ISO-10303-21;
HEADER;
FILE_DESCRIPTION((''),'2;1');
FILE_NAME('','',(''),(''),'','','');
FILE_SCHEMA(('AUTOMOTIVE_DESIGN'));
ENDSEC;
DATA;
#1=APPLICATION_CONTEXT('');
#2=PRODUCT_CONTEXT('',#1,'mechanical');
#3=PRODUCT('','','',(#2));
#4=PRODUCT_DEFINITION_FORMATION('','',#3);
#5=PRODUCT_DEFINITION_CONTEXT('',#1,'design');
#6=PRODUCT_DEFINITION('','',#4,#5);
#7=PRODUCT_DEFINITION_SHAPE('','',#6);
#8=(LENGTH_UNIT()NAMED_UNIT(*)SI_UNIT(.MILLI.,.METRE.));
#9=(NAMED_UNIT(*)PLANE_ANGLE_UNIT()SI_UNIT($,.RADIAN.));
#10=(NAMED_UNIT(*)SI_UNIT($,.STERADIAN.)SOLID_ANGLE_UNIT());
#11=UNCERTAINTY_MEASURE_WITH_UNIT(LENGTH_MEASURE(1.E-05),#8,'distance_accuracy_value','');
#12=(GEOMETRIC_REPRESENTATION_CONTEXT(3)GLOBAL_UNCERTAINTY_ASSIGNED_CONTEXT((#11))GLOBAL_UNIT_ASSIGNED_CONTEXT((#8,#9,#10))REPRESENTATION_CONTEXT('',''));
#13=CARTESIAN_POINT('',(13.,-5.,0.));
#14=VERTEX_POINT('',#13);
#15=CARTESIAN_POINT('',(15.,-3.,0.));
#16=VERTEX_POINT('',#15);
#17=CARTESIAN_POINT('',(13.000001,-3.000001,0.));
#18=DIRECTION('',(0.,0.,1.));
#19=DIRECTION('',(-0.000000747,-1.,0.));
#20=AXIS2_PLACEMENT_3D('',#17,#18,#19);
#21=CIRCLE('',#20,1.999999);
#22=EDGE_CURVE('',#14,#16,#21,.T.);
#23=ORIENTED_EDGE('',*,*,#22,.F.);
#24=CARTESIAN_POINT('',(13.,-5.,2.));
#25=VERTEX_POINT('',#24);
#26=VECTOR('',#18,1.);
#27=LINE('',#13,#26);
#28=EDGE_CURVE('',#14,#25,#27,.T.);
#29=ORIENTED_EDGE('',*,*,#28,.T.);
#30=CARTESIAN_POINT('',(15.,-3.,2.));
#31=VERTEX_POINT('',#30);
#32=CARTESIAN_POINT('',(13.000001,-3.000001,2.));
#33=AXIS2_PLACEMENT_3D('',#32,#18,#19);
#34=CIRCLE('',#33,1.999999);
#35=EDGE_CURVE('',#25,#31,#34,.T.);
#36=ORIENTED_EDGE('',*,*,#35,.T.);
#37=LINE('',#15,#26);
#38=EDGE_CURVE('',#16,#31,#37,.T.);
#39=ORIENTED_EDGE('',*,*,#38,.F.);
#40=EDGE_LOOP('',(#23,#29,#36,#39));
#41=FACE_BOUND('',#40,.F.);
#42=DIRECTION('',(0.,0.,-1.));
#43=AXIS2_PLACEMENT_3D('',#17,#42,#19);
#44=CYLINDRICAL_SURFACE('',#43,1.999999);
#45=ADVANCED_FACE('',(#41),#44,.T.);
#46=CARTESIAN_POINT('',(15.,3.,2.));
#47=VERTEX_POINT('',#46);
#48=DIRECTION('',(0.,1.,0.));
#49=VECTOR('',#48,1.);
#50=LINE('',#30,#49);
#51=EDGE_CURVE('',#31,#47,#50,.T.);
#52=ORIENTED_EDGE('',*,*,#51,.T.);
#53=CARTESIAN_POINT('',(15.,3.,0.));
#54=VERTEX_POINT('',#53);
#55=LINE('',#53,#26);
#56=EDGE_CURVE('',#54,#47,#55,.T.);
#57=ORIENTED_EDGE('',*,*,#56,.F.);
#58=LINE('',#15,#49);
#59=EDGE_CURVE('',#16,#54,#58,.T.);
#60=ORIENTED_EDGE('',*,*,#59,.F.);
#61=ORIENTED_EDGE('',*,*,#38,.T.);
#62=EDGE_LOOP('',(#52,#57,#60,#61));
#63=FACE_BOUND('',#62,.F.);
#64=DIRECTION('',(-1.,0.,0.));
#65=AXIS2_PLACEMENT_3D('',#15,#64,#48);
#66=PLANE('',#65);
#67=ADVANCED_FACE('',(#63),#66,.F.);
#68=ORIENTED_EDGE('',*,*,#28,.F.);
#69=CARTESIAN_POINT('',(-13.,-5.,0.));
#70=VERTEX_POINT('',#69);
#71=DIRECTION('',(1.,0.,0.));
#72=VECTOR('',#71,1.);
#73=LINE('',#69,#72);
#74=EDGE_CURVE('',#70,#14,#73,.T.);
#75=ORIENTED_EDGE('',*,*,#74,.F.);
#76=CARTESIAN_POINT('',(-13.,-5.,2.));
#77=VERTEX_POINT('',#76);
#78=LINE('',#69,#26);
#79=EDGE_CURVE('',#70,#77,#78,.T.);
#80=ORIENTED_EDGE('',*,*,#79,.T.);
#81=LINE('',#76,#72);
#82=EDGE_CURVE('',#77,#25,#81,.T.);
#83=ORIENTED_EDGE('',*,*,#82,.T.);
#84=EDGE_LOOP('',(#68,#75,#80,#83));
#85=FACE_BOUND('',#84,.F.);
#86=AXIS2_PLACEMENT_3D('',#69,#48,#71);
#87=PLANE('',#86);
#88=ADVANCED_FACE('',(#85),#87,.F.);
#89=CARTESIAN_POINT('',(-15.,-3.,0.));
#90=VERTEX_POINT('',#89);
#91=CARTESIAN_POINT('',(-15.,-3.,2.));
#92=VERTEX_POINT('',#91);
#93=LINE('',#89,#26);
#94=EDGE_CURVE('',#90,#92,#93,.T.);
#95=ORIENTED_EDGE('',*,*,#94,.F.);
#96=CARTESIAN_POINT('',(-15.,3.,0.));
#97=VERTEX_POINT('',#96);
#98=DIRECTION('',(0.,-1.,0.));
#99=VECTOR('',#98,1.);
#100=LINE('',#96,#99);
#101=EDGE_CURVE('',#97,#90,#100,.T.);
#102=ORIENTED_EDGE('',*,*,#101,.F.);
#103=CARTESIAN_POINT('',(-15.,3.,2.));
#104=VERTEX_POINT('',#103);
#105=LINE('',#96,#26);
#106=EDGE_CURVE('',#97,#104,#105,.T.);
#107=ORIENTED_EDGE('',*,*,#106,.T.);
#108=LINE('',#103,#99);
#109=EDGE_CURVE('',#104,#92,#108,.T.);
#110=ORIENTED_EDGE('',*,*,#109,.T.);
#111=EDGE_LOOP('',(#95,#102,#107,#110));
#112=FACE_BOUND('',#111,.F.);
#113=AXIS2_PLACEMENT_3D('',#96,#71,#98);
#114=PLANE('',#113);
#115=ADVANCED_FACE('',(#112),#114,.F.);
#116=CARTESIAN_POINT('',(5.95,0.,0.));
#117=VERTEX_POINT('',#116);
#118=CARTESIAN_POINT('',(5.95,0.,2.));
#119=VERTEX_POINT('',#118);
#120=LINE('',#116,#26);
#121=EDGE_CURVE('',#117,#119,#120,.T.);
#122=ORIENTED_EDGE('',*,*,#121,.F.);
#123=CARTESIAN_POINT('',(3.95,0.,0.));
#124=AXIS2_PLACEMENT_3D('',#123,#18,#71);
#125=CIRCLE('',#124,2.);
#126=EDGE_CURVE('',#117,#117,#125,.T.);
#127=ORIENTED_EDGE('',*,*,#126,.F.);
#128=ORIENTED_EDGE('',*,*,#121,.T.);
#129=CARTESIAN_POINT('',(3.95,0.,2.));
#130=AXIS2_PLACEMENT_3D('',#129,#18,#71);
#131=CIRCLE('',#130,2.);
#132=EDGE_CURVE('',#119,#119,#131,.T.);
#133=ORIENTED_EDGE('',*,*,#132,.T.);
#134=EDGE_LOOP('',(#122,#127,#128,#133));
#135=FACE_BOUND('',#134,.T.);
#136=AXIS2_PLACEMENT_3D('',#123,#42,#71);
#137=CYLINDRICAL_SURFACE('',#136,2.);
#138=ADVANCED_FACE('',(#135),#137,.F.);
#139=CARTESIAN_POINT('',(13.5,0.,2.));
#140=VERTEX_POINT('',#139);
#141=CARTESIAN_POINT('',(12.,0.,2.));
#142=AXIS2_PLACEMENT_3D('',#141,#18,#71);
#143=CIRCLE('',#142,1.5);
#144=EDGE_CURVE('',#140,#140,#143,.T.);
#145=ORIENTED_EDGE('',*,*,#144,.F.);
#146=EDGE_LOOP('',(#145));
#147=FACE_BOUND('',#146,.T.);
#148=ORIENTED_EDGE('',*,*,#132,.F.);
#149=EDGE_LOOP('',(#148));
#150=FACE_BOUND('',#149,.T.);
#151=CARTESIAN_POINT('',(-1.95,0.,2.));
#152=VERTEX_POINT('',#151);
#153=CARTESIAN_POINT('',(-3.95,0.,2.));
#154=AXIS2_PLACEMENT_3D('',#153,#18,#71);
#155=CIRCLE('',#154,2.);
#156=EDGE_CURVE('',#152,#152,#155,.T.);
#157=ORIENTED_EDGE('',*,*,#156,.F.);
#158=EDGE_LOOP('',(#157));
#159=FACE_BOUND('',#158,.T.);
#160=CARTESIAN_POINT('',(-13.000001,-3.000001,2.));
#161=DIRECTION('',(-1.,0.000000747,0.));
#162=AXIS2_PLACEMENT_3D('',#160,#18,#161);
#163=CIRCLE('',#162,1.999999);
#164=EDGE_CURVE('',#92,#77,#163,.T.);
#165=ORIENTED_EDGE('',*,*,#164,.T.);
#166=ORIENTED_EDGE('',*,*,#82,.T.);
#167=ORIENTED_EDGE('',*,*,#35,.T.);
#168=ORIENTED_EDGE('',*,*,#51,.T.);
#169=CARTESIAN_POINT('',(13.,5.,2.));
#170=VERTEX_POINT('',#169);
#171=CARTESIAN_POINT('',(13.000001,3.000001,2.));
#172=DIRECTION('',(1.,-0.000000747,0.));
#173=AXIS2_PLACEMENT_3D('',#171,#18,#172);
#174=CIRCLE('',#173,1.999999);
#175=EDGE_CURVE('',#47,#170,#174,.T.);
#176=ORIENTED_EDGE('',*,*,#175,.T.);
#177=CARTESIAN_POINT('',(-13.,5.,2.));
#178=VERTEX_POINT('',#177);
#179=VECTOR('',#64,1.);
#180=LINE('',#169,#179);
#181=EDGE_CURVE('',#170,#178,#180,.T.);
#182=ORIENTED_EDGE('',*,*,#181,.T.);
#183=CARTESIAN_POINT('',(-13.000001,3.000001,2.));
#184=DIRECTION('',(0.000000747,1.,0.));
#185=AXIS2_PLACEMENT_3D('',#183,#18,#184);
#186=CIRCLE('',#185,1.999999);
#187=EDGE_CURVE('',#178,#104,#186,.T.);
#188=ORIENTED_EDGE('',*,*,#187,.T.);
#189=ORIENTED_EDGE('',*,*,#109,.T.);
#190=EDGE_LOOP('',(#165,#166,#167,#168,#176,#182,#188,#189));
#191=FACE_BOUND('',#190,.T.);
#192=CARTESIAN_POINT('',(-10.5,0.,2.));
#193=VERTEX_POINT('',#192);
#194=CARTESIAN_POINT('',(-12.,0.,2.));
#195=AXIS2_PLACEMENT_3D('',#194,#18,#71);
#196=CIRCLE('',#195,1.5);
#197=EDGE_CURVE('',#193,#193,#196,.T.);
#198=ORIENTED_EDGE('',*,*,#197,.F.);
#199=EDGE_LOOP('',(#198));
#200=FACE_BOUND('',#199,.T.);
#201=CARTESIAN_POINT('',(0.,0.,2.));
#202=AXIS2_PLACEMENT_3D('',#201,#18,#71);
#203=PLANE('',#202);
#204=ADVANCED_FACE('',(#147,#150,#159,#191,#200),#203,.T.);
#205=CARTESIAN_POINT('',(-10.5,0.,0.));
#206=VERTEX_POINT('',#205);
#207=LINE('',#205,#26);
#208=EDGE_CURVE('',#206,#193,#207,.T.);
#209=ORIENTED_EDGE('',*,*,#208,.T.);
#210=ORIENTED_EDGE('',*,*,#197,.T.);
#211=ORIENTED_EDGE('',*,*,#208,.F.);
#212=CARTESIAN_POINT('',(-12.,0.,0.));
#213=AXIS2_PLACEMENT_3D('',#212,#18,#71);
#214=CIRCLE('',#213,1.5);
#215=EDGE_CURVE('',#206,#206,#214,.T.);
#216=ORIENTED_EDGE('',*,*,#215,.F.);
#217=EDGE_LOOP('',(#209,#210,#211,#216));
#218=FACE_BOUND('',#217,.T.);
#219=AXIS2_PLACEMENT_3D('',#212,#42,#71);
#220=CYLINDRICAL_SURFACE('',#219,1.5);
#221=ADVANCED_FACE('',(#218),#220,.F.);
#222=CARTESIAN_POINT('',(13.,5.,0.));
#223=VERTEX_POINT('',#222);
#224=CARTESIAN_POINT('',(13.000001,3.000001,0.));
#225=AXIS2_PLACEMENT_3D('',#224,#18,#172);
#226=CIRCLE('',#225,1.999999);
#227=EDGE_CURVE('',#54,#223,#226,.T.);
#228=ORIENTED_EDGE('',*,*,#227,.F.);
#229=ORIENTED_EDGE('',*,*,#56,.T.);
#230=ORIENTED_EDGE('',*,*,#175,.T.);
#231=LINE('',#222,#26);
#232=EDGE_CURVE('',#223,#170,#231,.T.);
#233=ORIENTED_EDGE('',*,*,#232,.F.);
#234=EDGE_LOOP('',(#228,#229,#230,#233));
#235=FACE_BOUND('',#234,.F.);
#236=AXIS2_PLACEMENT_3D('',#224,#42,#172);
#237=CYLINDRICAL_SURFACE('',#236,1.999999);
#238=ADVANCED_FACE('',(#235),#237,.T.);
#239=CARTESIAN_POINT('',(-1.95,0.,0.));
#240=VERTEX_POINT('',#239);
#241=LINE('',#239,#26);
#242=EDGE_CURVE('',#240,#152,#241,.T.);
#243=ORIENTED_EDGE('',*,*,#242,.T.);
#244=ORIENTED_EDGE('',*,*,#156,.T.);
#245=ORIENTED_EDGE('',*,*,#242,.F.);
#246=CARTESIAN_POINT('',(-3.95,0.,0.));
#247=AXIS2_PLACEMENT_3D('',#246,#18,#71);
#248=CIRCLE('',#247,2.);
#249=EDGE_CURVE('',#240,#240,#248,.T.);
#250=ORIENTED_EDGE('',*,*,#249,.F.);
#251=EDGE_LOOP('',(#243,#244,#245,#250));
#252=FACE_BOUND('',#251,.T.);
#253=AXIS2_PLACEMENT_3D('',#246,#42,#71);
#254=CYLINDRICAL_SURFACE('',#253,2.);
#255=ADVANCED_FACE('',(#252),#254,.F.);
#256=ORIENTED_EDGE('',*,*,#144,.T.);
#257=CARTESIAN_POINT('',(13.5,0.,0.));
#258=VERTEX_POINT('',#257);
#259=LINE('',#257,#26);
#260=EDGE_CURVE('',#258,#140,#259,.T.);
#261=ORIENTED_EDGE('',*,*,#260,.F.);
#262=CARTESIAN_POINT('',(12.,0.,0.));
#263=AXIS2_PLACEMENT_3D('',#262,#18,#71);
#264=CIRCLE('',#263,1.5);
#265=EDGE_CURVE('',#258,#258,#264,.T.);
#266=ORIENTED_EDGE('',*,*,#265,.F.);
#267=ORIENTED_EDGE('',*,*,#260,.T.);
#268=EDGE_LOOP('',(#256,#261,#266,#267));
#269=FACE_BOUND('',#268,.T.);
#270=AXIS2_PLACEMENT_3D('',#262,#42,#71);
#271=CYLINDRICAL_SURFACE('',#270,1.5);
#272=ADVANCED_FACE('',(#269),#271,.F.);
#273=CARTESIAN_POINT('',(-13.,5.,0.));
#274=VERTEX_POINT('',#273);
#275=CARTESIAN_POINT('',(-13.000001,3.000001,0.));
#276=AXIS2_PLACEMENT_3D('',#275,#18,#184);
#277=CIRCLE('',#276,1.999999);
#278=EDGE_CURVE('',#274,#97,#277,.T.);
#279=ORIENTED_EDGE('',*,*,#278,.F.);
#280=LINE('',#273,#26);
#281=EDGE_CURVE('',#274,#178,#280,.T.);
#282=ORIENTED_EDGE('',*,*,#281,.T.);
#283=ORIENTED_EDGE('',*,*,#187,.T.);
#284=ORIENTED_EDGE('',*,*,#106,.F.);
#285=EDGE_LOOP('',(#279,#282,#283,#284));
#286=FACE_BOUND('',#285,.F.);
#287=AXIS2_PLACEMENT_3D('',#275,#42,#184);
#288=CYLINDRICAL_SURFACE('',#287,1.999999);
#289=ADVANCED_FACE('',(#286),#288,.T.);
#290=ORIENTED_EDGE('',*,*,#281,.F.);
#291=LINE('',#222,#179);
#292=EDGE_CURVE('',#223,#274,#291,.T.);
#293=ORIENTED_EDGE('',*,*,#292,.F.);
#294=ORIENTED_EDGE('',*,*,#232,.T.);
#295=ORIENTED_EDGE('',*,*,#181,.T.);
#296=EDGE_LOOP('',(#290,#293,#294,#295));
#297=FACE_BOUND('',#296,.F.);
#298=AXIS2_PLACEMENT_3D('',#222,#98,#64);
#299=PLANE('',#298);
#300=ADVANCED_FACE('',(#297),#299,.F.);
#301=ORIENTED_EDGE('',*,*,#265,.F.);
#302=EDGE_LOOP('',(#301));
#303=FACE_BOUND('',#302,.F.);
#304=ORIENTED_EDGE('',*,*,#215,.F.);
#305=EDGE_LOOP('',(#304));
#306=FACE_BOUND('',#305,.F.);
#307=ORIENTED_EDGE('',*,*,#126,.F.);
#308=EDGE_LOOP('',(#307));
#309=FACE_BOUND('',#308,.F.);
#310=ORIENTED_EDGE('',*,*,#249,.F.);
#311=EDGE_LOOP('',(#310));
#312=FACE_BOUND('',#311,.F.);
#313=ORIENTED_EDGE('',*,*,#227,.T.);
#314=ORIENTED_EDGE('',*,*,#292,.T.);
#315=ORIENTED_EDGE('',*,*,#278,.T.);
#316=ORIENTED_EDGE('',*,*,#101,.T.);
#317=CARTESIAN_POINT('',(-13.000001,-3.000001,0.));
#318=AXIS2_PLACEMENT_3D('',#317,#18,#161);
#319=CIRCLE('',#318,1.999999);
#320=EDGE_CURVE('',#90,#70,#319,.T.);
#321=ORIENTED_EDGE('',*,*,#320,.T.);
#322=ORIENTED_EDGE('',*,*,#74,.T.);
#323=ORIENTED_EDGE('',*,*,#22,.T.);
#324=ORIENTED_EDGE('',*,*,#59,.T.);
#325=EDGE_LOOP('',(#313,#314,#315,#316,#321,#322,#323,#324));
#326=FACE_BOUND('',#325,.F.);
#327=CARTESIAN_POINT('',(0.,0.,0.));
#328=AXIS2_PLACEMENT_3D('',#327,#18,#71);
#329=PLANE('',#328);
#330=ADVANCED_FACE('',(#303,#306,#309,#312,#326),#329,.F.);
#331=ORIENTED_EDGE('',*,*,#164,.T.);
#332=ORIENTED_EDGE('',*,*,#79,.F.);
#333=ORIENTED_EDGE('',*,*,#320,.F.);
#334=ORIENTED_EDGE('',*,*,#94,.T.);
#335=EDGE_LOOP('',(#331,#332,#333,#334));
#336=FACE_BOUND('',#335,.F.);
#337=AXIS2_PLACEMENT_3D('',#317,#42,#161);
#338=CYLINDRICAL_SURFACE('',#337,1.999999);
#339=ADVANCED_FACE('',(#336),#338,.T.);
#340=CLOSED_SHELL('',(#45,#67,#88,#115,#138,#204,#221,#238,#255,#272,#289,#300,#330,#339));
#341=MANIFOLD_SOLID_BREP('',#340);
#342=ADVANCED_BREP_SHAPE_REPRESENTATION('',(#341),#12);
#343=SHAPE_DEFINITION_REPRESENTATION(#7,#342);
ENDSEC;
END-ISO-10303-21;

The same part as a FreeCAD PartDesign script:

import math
import FreeCAD as App
import Part
import Sketcher

V = App.Vector
Q = App.Units.Quantity

doc = App.newDocument("Part")
body = doc.addObject("PartDesign::Body", "Body")

# Sketch on XY plane
sketch1 = body.newObject("Sketcher::SketchObject", "Sketch")
sketch1.AttachmentSupport = (doc.getObject("XY_Plane"), [""])
sketch1.MapMode = "FlatFace"
sketch1.addGeometry([
    Part.LineSegment(V(-13, -5, 0), V(13, -5, 0)),  # 0
    Part.ArcOfCircle(Part.Circle(V(13.000001, -3.000001, 0), V(0, 0, 1), 1.999999), math.radians(-90.000043), math.radians(0.000043)),  # 1
    Part.LineSegment(V(15, -3, 0), V(15, 3, 0)),  # 2
    Part.ArcOfCircle(Part.Circle(V(13.000001, 3.000001, 0), V(0, 0, 1), 1.999999), math.radians(-0.000043), math.radians(90.000043)),  # 3
    Part.LineSegment(V(13, 5, 0), V(-13, 5, 0)),  # 4
    Part.ArcOfCircle(Part.Circle(V(-13.000001, 3.000001, 0), V(0, 0, 1), 1.999999), math.radians(89.999957), math.radians(180.000043)),  # 5
    Part.LineSegment(V(-15, 3, 0), V(-15, -3, 0)),  # 6
    Part.ArcOfCircle(Part.Circle(V(-13.000001, -3.000001, 0), V(0, 0, 1), 1.999999), math.radians(179.999957), math.radians(270.000043)),  # 7
    Part.Circle(V(-12, 0, 0), V(0, 0, 1), 1.5),  # 8
    Part.Circle(V(-3.95, 0, 0), V(0, 0, 1), 2),  # 9
    Part.Circle(V(3.95, 0, 0), V(0, 0, 1), 2),  # 10
    Part.Circle(V(12, 0, 0), V(0, 0, 1), 1.5),  # 11
], False)
sketch1.addConstraint([
    Sketcher.Constraint("Tangent", 0, 2, 1, 1),
    Sketcher.Constraint("Tangent", 1, 2, 2, 1),
    Sketcher.Constraint("Tangent", 2, 2, 3, 1),
    Sketcher.Constraint("Tangent", 3, 2, 4, 1),
    Sketcher.Constraint("Tangent", 4, 2, 5, 1),
    Sketcher.Constraint("Tangent", 5, 2, 6, 1),
    Sketcher.Constraint("Tangent", 6, 2, 7, 1),
    Sketcher.Constraint("Tangent", 7, 2, 0, 1),
    Sketcher.Constraint("Horizontal", 0),
    Sketcher.Constraint("Vertical", 2),
    Sketcher.Constraint("Horizontal", 4),
    Sketcher.Constraint("Vertical", 6),
    Sketcher.Constraint("Equal", 1, 3),
    Sketcher.Constraint("Equal", 3, 5),
    Sketcher.Constraint("Equal", 5, 7),
    Sketcher.Constraint("Equal", 7, 9),
    Sketcher.Constraint("Equal", 9, 10),
    Sketcher.Constraint("Equal", 8, 11),
    Sketcher.Constraint("Symmetric", 1, 3, 5, 3, -1, 1),
    Sketcher.Constraint("Symmetric", 9, 3, 10, 3, -1, 1),
    Sketcher.Constraint("Symmetric", 8, 3, 11, 3, -1, 1),
    Sketcher.Constraint("PointOnObject", 8, 3, -1),
    Sketcher.Constraint("PointOnObject", 9, 3, -1),
    Sketcher.Constraint("Diameter", 8, Q("3 mm")),
    Sketcher.Constraint("Diameter", 9, Q("4 mm")),
    Sketcher.Constraint("DistanceX", 0, 1, 0, 2, Q("26 mm")),
    Sketcher.Constraint("DistanceY", 2, 1, 2, 2, Q("6 mm")),
    Sketcher.Constraint("DistanceX", 8, 3, -1, 1, Q("12 mm")),
    Sketcher.Constraint("DistanceX", 9, 3, 10, 3, Q("7.9 mm")),
])
pad1 = body.newObject("PartDesign::Pad", "Pad")
pad1.Profile = sketch1
pad1.Length = 2

doc.recompute()
